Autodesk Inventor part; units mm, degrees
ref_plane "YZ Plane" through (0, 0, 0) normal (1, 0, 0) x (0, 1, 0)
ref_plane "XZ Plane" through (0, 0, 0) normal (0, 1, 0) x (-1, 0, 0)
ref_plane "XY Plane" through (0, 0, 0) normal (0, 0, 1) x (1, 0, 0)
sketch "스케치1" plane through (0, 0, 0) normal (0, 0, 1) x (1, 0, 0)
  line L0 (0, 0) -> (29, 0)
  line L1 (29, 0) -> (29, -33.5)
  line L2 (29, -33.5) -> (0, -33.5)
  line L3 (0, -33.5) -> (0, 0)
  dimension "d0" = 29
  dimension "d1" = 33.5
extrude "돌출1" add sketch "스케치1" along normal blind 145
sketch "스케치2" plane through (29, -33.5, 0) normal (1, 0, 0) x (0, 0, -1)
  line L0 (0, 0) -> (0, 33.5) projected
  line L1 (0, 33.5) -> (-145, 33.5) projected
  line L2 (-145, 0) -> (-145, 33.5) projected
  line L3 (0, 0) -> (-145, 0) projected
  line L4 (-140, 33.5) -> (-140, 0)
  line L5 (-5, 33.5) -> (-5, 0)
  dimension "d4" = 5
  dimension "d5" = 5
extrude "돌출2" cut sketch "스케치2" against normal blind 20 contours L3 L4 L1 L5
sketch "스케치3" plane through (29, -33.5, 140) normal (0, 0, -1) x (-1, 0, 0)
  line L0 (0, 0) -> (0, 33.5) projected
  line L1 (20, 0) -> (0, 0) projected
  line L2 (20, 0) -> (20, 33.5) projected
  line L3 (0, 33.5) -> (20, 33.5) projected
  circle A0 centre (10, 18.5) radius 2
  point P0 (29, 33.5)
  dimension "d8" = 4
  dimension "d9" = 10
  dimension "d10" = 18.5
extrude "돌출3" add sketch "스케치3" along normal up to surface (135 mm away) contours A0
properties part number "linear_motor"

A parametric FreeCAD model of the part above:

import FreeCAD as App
import Part
import Sketcher
from FreeCAD import Vector
Q = App.Units.Quantity


def add_polygon(sketch, points):
    """Adds a closed chain of lines whose ends are joined by coincident constraints."""
    first, n = sketch.GeometryCount, len(points)
    for a, b in zip(points, points[1:] + points[:1]):
        sketch.addGeometry(Part.LineSegment(App.Vector(*a, 0), App.Vector(*b, 0)), False)
    for i in range(n):
        sketch.addConstraint(Sketcher.Constraint("Coincident", first + i, 2, first + (i + 1) % n, 1))

doc = App.newDocument("Part")
body = doc.addObject("PartDesign::Body", "Body")

# Sketch on XY plane
sketch1 = body.newObject("Sketcher::SketchObject", "Sketch")
sketch1.AttachmentSupport = (doc.getObject("XY_Plane"), [""])
sketch1.MapMode = "FlatFace"
add_polygon(sketch1, [(29, 0), (0, 0), (0, -34), (29, -34)])  # lines 0-3
sketch1.addConstraint([
    Sketcher.Constraint("Horizontal", 0),
    Sketcher.Constraint("Vertical", 1),
    Sketcher.Constraint("Horizontal", 2),
    Sketcher.Constraint("Vertical", 3),
    Sketcher.Constraint("Coincident", 0, 2, -1, 1),
    Sketcher.Constraint("DistanceX", 0, 2, 0, 1, Q("29 mm")),
    Sketcher.Constraint("DistanceY", 1, 2, 1, 1, Q("33.5 mm")),
])
pad1 = body.newObject("PartDesign::Pad", "Pad")
pad1.Profile = sketch1
pad1.Length = 145

# Sketch on YZ plane
sketch2 = body.newObject("Sketcher::SketchObject", "Sketch001")
sketch2.AttachmentSupport = (doc.getObject("YZ_Plane"), [""])
sketch2.MapMode = "FlatFace"
sketch2.AttachmentOffset = App.Placement(Vector(0, 0, 29), App.Rotation())
add_polygon(sketch2, [(-34, 140), (-34, 5), (0, 5), (0, 140)])  # lines 0-3
sketch2.addConstraint([
    Sketcher.Constraint("Vertical", 0),
    Sketcher.Constraint("Horizontal", 1),
    Sketcher.Constraint("Vertical", 2),
    Sketcher.Constraint("Horizontal", 3),
    Sketcher.Constraint("PointOnObject", 1, 2, -2),
    Sketcher.Constraint("DistanceY", -1, 1, 0, 2, Q("5 mm")),
    Sketcher.Constraint("DistanceY", 0, 2, 0, 1, Q("135 mm")),
    Sketcher.Constraint("DistanceX", 1, 1, 1, 2, Q("33.5 mm")),
])
pocket1 = body.newObject("PartDesign::Pocket", "Pocket")
pocket1.Profile = sketch2
pocket1.Length = 20

# Sketch on XY plane
sketch3 = body.newObject("Sketcher::SketchObject", "Sketch002")
sketch3.AttachmentSupport = (doc.getObject("XY_Plane"), [""])
sketch3.MapMode = "FlatFace"
sketch3.AttachmentOffset = App.Placement(Vector(0, 0, 140), App.Rotation())
sketch3.addGeometry(Part.Circle(Vector(19, -15, 0), Vector(0, 0, 1), 2), False)
sketch3.addConstraint([
    Sketcher.Constraint("Diameter", 0, Q("4 mm")),
    Sketcher.Constraint("DistanceX", -1, 1, 0, 3, Q("19 mm")),
    Sketcher.Constraint("DistanceY", 0, 3, -1, 1, Q("15 mm")),
])
pad2 = body.newObject("PartDesign::Pad", "Pad001")
pad2.Profile = sketch3
pad2.Length = 135
pad2.Reversed = True

doc.recompute()
